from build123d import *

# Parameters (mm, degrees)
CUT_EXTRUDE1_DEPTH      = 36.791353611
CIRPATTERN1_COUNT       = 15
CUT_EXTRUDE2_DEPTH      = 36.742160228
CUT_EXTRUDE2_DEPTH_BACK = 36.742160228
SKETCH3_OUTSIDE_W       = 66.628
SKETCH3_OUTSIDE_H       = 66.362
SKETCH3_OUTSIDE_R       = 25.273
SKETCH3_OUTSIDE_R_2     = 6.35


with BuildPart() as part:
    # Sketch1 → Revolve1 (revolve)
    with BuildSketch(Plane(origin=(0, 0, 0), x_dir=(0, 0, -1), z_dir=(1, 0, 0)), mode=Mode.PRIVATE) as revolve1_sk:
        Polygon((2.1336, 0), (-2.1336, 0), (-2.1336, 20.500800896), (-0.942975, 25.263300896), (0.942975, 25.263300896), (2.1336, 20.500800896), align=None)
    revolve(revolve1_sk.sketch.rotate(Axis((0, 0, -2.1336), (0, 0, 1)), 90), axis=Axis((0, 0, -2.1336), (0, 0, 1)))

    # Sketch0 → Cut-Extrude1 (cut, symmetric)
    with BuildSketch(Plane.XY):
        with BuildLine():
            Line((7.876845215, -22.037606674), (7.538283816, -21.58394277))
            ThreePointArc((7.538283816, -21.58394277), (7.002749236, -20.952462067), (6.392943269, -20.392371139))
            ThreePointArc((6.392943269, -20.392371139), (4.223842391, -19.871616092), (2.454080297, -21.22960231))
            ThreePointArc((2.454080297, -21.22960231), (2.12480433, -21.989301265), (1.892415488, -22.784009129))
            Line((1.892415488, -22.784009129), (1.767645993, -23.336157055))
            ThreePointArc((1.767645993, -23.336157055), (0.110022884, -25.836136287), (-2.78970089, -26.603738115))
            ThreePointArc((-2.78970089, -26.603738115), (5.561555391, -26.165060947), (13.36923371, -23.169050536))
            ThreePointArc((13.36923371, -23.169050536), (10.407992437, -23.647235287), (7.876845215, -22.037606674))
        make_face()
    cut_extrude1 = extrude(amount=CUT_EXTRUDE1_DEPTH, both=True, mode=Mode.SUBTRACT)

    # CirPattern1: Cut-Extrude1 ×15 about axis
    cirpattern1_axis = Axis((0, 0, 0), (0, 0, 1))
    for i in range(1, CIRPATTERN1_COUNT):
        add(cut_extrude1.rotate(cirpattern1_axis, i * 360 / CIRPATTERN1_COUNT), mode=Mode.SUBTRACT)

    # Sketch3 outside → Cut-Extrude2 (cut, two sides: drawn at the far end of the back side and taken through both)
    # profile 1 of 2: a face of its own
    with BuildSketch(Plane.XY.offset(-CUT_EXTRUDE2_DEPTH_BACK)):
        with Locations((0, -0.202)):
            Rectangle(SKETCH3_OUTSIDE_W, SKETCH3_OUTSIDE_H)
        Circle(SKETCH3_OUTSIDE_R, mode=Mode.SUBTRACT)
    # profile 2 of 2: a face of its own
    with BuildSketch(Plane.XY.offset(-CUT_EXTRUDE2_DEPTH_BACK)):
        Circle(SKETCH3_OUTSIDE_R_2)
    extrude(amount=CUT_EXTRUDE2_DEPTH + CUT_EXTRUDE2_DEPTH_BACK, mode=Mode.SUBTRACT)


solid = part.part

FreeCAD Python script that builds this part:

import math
import FreeCAD as App
import Part
import Sketcher

V = App.Vector
Q = App.Units.Quantity

doc = App.newDocument("Part")
body = doc.addObject("PartDesign::Body", "Body")

sketch1 = doc.addObject("Sketcher::SketchObject", "Sketch")
body.addObject(sketch1)
sketch1.AttachmentSupport = (doc.YZ_Plane, [""])
sketch1.MapMode = "FlatFace"
sketch1.addGeometry([
    Part.LineSegment(V(0, 2.1, 0), V(0, -2.1, 0)),
    Part.LineSegment(V(0, -2.1, 0), V(20.5, -2.1, 0)),
    Part.LineSegment(V(20.5, -2.1, 0), V(25.3, -0.9, 0)),
    Part.LineSegment(V(25.3, -0.9, 0), V(25.3, 0.9, 0)),
    Part.LineSegment(V(25.3, 0.9, 0), V(20.5, 2.1, 0)),
    Part.LineSegment(V(20.5, 2.1, 0), V(0, 2.1, 0)),
], False)
sketch1.addConstraint([
    Sketcher.Constraint("Coincident", 0, 2, 1, 1),
    Sketcher.Constraint("Coincident", 1, 2, 2, 1),
    Sketcher.Constraint("Coincident", 2, 2, 3, 1),
    Sketcher.Constraint("Coincident", 3, 2, 4, 1),
    Sketcher.Constraint("Coincident", 4, 2, 5, 1),
    Sketcher.Constraint("Coincident", 5, 2, 0, 1),
    Sketcher.Constraint("Vertical", 0),
    Sketcher.Constraint("Horizontal", 1),
    Sketcher.Constraint("Vertical", 3),
    Sketcher.Constraint("Horizontal", 5),
    Sketcher.Constraint("Symmetric", 0, 2, 5, 2, -1, 1),
    Sketcher.Constraint("Vertical", 1, 2, 4, 2),
    Sketcher.Constraint("Equal", 2, 4),
    Sketcher.Constraint("DistanceY", 0, 2, 0, 1, Q("0.168 in")),
    Sketcher.Constraint("DistanceX", 1, 2, 2, 2, Q("0.1875 in")),
    Sketcher.Constraint("DistanceY", 1, 2, 2, 2, Q("0.046875 in")),
    Sketcher.Constraint("DistanceX", 1, 1, 1, 2, 20.500801),
])
revolution = doc.addObject("PartDesign::Revolution", "Revolution")
body.addObject(revolution)
revolution.Profile = sketch1
revolution.ReferenceAxis = (sketch1, ["V_Axis"])
revolution.Angle = 360

sketch2 = doc.addObject("Sketcher::SketchObject", "Sketch001")
body.addObject(sketch2)
sketch2.AttachmentSupport = (doc.XY_Plane, [""])
sketch2.MapMode = "FlatFace"
sketch2.addGeometry([
    Part.LineSegment(V(7.9, -22, 0), V(7.5, -21.6, 0)),
    Part.ArcOfCircle(Part.Circle(V(2.2, -25.6, 0), V(0, 0, 1), 6.7), math.radians(36.73), math.radians(51)),
    Part.ArcOfCircle(Part.Circle(V(4.8, -22.4, 0), V(0, 0, 1), 2.6), math.radians(51), math.radians(153)),
    Part.ArcOfCircle(Part.Circle(V(8.4, -24.3, 0), V(0, 0, 1), 6.7), math.radians(153), math.radians(167.27)),
    Part.LineSegment(V(1.9, -22.8, 0), V(1.8, -23.3, 0)),
    Part.ArcOfCircle(Part.Circle(V(-2.3, -22.4, 0), V(0, 0, 1), 4.2), math.radians(-96), math.radians(-13)),
    Part.ArcOfCircle(Part.Circle(V(0, 0, 0), V(0, 0, 1), 26.7), math.radians(-96), math.radians(-60)),
    Part.ArcOfCircle(Part.Circle(V(11.3, -19.5, 0), V(0, 0, 1), 4.2), math.radians(-143), math.radians(-60)),
], False)
sketch2.addConstraint([
    Sketcher.Constraint("Tangent", 0, 2, 1, 1),
    Sketcher.Constraint("Tangent", 1, 2, 2, 1),
    Sketcher.Constraint("Tangent", 2, 2, 3, 1),
    Sketcher.Constraint("Tangent", 3, 2, 4, 1),
    Sketcher.Constraint("Tangent", 4, 2, 5, 2),
    Sketcher.Constraint("Tangent", 5, 1, 6, 1),
    Sketcher.Constraint("Tangent", 6, 2, 7, 2),
    Sketcher.Constraint("Tangent", 7, 1, 0, 1),
    Sketcher.Constraint("Coincident", 6, 3, -1, 1),
    Sketcher.Constraint("Equal", 1, 3),
    Sketcher.Constraint("Equal", 5, 7),
    Sketcher.Constraint("Horizontal", 2, 3, 5, 3),
    Sketcher.Constraint("Equal", 0, 4),
    Sketcher.Constraint("Radius", 1, Q("0.262 in")),
    Sketcher.Constraint("Radius", 2, Q("0.102 in")),
    Sketcher.Constraint("DistanceX", 5, 3, 2, 3, Q("0.28 in")),
    Sketcher.Constraint("DistanceX", -1, 1, 2, 3, Q("0.1875 in")),
    Sketcher.Constraint("Radius", 5, 4.220954),
    Sketcher.Constraint("Radius", 6, 26.749604),
    Sketcher.Constraint("DistanceY", 1, 3, 0, 2, Q("0.1567 in")),
    Sketcher.Constraint("DistanceX", 1, 3, 1, 2, 4.188001),
])
pocket1 = doc.addObject("PartDesign::Pocket", "Pocket")
body.addObject(pocket1)
pocket1.Profile = sketch2
pocket1.Length = 73.582707
pocket1.Midplane = True
doc.recompute()

polarpattern = doc.addObject("PartDesign::PolarPattern", "PolarPattern")
body.addObject(polarpattern)
polarpattern.Originals = [pocket1]
polarpattern.Axis = (doc.Z_Axis, [""])
polarpattern.Angle = 360
polarpattern.Occurrences = 15
body.Tip = polarpattern

sketch3 = doc.addObject("Sketcher::SketchObject", "Sketch002")
body.addObject(sketch3)
sketch3.AttachmentSupport = (doc.XY_Plane, [""])
sketch3.MapMode = "FlatFace"
sketch3.addGeometry([
    Part.LineSegment(V(-33, 33, 0), V(-33, -33, 0)),
    Part.LineSegment(V(-33, -33, 0), V(33, -33, 0)),
    Part.LineSegment(V(33, -33, 0), V(33, 33, 0)),
    Part.LineSegment(V(33, 33, 0), V(-33, 33, 0)),
    Part.Circle(V(0, 0, 0), V(0, 0, 1), 25),
    Part.Circle(V(0, 0, 0), V(0, 0, 1), 6),
], False)
sketch3.addConstraint([
    Sketcher.Constraint("Coincident", 0, 2, 1, 1),
    Sketcher.Constraint("Coincident", 1, 2, 2, 1),
    Sketcher.Constraint("Coincident", 2, 2, 3, 1),
    Sketcher.Constraint("Coincident", 3, 2, 0, 1),
    Sketcher.Constraint("Vertical", 0),
    Sketcher.Constraint("Horizontal", 1),
    Sketcher.Constraint("Vertical", 2),
    Sketcher.Constraint("Horizontal", 3),
    Sketcher.Constraint("Coincident", 4, 3, -1, 1),
    Sketcher.Constraint("Coincident", 5, 3, -1, 1),
    Sketcher.Constraint("Diameter", 5, Q("0.5 in")),
    Sketcher.Constraint("Diameter", 4, Q("1.99 in")),
    Sketcher.Constraint("DistanceX", 1, 1, 1, 2, 66.628),
    Sketcher.Constraint("DistanceY", 0, 2, 0, 1, 66.362),
    Sketcher.Constraint("DistanceX", 0, 2, -1, 1, 33.314),
    Sketcher.Constraint("DistanceY", 0, 2, -1, 1, 33.383),
])
pocket2 = doc.addObject("PartDesign::Pocket", "Pocket001")
body.addObject(pocket2)
pocket2.Profile = sketch3
pocket2.Type = "ThroughAll"
pocket2.Midplane = True

doc.recompute()
